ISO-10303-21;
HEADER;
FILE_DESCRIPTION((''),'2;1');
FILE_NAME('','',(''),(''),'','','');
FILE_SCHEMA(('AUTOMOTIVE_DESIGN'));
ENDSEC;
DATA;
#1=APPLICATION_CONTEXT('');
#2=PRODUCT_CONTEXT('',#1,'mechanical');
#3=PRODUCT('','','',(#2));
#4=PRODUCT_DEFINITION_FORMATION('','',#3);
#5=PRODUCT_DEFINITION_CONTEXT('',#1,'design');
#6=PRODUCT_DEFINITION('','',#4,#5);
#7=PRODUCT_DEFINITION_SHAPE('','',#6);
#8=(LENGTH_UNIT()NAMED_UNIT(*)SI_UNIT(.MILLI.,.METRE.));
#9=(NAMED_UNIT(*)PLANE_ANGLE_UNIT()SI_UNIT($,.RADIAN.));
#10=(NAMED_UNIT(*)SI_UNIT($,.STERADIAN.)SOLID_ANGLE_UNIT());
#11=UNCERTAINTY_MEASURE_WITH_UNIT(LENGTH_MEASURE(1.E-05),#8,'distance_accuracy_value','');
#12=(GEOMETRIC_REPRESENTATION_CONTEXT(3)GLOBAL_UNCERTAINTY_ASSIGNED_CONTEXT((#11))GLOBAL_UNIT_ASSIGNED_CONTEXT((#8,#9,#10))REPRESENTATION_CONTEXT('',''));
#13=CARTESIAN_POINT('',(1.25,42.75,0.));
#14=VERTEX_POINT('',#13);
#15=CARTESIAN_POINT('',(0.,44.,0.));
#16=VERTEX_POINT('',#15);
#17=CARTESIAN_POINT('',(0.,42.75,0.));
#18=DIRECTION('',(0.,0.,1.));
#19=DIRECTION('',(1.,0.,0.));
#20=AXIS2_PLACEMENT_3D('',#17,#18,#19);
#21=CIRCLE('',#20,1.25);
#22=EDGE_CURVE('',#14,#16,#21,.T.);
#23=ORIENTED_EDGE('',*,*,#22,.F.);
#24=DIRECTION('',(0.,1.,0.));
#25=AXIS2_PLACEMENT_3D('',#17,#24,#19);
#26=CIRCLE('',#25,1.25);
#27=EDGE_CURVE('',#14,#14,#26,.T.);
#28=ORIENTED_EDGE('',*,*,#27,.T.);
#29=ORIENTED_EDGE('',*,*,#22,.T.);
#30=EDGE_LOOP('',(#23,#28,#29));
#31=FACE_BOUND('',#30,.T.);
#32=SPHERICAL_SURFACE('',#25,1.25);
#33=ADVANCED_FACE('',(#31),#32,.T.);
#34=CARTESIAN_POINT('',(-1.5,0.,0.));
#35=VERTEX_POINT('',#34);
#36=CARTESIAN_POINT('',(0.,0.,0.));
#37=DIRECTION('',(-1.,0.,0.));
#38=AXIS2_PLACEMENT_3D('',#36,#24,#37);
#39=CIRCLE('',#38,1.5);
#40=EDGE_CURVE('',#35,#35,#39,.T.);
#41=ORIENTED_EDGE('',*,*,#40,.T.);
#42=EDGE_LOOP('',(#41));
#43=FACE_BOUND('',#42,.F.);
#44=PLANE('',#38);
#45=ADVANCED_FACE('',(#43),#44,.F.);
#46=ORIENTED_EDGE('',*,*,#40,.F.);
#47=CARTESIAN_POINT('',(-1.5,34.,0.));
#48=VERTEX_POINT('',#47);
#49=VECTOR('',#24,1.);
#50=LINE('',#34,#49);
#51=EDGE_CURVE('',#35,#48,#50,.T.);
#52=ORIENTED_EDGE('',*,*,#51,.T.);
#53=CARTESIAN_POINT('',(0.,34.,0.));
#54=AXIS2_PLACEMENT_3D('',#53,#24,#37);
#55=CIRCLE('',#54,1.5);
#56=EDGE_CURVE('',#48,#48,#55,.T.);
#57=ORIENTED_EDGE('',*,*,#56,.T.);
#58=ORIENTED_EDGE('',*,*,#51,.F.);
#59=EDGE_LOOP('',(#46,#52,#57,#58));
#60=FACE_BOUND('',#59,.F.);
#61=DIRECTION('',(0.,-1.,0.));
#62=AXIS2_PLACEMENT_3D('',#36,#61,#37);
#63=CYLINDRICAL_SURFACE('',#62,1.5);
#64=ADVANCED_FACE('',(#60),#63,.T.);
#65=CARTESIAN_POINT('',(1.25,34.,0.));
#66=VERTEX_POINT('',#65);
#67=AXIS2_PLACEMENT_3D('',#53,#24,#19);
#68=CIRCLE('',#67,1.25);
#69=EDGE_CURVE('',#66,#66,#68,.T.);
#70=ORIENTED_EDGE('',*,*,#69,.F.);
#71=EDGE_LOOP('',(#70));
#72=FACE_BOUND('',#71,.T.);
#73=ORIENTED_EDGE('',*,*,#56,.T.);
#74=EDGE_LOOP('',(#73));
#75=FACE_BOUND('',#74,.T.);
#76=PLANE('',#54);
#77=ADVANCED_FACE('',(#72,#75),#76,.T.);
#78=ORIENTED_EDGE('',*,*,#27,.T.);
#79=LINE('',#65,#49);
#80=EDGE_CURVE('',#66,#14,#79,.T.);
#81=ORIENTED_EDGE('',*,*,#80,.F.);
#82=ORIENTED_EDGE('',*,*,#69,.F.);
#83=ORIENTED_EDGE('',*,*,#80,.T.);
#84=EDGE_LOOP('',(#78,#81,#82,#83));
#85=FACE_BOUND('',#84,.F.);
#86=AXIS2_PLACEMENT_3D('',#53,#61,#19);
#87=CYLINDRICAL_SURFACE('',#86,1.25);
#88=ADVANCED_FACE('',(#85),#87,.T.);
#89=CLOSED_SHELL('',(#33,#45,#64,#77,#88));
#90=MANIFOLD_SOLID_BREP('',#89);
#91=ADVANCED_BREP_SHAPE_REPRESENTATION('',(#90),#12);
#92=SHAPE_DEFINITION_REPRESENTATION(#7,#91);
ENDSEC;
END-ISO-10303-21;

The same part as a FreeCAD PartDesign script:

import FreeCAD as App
import Part
import Sketcher
from FreeCAD import Vector


def edges_at(feature, points):
    """Names of the edges that pass closest to the given points."""
    edges = feature.Shape.Edges
    near = lambda p: min(range(len(edges)), key=lambda i: edges[i].distToShape(Part.Vertex(*p))[0])
    return sorted({f"Edge{near(p) + 1}" for p in points})

doc = App.newDocument("Part")
body = doc.addObject("PartDesign::Body", "Body")

# Sketch on XZ plane
sketch1 = doc.addObject("Sketcher::SketchObject", "Sketch")
body.addObject(sketch1)
sketch1.AttachmentSupport = (doc.XZ_Plane, [""])
sketch1.MapMode = "FlatFace"
sketch1.addGeometry(Part.Circle(Vector(0, 0, 0), Vector(0, 0, 1), 1.5), False)
sketch1.addConstraint([
    Sketcher.Constraint("Coincident", 0, 3, -1, 1),
    Sketcher.Constraint("Diameter", 0, 3.0),
])
pad1 = doc.addObject("PartDesign::Pad", "Pad")
body.addObject(pad1)
pad1.Profile = sketch1
pad1.Length = 34
pad1.Reversed = True

# Sketch on XZ plane
sketch2 = doc.addObject("Sketcher::SketchObject", "Sketch001")
body.addObject(sketch2)
sketch2.AttachmentSupport = (doc.XZ_Plane, [""])
sketch2.MapMode = "FlatFace"
sketch2.AttachmentOffset = App.Placement(Vector(0, 0, -34), App.Rotation())
sketch2.addGeometry(Part.Circle(Vector(0, 0, 0), Vector(0, 0, 1), 1.2), False)
sketch2.addConstraint([
    Sketcher.Constraint("Coincident", 0, 3, -1, 1),
    Sketcher.Constraint("Diameter", 0, 2.5),
])
pad2 = doc.addObject("PartDesign::Pad", "Pad001")
body.addObject(pad2)
pad2.Profile = sketch2
pad2.Length = 10
pad2.Reversed = True
doc.recompute()

fillet = doc.addObject("PartDesign::Fillet", "Fillet")
body.addObject(fillet)
fillet.Base = (pad2, edges_at(pad2, [(-1.25, 44, 0)]))
fillet.Radius = 1.25

doc.recompute()
